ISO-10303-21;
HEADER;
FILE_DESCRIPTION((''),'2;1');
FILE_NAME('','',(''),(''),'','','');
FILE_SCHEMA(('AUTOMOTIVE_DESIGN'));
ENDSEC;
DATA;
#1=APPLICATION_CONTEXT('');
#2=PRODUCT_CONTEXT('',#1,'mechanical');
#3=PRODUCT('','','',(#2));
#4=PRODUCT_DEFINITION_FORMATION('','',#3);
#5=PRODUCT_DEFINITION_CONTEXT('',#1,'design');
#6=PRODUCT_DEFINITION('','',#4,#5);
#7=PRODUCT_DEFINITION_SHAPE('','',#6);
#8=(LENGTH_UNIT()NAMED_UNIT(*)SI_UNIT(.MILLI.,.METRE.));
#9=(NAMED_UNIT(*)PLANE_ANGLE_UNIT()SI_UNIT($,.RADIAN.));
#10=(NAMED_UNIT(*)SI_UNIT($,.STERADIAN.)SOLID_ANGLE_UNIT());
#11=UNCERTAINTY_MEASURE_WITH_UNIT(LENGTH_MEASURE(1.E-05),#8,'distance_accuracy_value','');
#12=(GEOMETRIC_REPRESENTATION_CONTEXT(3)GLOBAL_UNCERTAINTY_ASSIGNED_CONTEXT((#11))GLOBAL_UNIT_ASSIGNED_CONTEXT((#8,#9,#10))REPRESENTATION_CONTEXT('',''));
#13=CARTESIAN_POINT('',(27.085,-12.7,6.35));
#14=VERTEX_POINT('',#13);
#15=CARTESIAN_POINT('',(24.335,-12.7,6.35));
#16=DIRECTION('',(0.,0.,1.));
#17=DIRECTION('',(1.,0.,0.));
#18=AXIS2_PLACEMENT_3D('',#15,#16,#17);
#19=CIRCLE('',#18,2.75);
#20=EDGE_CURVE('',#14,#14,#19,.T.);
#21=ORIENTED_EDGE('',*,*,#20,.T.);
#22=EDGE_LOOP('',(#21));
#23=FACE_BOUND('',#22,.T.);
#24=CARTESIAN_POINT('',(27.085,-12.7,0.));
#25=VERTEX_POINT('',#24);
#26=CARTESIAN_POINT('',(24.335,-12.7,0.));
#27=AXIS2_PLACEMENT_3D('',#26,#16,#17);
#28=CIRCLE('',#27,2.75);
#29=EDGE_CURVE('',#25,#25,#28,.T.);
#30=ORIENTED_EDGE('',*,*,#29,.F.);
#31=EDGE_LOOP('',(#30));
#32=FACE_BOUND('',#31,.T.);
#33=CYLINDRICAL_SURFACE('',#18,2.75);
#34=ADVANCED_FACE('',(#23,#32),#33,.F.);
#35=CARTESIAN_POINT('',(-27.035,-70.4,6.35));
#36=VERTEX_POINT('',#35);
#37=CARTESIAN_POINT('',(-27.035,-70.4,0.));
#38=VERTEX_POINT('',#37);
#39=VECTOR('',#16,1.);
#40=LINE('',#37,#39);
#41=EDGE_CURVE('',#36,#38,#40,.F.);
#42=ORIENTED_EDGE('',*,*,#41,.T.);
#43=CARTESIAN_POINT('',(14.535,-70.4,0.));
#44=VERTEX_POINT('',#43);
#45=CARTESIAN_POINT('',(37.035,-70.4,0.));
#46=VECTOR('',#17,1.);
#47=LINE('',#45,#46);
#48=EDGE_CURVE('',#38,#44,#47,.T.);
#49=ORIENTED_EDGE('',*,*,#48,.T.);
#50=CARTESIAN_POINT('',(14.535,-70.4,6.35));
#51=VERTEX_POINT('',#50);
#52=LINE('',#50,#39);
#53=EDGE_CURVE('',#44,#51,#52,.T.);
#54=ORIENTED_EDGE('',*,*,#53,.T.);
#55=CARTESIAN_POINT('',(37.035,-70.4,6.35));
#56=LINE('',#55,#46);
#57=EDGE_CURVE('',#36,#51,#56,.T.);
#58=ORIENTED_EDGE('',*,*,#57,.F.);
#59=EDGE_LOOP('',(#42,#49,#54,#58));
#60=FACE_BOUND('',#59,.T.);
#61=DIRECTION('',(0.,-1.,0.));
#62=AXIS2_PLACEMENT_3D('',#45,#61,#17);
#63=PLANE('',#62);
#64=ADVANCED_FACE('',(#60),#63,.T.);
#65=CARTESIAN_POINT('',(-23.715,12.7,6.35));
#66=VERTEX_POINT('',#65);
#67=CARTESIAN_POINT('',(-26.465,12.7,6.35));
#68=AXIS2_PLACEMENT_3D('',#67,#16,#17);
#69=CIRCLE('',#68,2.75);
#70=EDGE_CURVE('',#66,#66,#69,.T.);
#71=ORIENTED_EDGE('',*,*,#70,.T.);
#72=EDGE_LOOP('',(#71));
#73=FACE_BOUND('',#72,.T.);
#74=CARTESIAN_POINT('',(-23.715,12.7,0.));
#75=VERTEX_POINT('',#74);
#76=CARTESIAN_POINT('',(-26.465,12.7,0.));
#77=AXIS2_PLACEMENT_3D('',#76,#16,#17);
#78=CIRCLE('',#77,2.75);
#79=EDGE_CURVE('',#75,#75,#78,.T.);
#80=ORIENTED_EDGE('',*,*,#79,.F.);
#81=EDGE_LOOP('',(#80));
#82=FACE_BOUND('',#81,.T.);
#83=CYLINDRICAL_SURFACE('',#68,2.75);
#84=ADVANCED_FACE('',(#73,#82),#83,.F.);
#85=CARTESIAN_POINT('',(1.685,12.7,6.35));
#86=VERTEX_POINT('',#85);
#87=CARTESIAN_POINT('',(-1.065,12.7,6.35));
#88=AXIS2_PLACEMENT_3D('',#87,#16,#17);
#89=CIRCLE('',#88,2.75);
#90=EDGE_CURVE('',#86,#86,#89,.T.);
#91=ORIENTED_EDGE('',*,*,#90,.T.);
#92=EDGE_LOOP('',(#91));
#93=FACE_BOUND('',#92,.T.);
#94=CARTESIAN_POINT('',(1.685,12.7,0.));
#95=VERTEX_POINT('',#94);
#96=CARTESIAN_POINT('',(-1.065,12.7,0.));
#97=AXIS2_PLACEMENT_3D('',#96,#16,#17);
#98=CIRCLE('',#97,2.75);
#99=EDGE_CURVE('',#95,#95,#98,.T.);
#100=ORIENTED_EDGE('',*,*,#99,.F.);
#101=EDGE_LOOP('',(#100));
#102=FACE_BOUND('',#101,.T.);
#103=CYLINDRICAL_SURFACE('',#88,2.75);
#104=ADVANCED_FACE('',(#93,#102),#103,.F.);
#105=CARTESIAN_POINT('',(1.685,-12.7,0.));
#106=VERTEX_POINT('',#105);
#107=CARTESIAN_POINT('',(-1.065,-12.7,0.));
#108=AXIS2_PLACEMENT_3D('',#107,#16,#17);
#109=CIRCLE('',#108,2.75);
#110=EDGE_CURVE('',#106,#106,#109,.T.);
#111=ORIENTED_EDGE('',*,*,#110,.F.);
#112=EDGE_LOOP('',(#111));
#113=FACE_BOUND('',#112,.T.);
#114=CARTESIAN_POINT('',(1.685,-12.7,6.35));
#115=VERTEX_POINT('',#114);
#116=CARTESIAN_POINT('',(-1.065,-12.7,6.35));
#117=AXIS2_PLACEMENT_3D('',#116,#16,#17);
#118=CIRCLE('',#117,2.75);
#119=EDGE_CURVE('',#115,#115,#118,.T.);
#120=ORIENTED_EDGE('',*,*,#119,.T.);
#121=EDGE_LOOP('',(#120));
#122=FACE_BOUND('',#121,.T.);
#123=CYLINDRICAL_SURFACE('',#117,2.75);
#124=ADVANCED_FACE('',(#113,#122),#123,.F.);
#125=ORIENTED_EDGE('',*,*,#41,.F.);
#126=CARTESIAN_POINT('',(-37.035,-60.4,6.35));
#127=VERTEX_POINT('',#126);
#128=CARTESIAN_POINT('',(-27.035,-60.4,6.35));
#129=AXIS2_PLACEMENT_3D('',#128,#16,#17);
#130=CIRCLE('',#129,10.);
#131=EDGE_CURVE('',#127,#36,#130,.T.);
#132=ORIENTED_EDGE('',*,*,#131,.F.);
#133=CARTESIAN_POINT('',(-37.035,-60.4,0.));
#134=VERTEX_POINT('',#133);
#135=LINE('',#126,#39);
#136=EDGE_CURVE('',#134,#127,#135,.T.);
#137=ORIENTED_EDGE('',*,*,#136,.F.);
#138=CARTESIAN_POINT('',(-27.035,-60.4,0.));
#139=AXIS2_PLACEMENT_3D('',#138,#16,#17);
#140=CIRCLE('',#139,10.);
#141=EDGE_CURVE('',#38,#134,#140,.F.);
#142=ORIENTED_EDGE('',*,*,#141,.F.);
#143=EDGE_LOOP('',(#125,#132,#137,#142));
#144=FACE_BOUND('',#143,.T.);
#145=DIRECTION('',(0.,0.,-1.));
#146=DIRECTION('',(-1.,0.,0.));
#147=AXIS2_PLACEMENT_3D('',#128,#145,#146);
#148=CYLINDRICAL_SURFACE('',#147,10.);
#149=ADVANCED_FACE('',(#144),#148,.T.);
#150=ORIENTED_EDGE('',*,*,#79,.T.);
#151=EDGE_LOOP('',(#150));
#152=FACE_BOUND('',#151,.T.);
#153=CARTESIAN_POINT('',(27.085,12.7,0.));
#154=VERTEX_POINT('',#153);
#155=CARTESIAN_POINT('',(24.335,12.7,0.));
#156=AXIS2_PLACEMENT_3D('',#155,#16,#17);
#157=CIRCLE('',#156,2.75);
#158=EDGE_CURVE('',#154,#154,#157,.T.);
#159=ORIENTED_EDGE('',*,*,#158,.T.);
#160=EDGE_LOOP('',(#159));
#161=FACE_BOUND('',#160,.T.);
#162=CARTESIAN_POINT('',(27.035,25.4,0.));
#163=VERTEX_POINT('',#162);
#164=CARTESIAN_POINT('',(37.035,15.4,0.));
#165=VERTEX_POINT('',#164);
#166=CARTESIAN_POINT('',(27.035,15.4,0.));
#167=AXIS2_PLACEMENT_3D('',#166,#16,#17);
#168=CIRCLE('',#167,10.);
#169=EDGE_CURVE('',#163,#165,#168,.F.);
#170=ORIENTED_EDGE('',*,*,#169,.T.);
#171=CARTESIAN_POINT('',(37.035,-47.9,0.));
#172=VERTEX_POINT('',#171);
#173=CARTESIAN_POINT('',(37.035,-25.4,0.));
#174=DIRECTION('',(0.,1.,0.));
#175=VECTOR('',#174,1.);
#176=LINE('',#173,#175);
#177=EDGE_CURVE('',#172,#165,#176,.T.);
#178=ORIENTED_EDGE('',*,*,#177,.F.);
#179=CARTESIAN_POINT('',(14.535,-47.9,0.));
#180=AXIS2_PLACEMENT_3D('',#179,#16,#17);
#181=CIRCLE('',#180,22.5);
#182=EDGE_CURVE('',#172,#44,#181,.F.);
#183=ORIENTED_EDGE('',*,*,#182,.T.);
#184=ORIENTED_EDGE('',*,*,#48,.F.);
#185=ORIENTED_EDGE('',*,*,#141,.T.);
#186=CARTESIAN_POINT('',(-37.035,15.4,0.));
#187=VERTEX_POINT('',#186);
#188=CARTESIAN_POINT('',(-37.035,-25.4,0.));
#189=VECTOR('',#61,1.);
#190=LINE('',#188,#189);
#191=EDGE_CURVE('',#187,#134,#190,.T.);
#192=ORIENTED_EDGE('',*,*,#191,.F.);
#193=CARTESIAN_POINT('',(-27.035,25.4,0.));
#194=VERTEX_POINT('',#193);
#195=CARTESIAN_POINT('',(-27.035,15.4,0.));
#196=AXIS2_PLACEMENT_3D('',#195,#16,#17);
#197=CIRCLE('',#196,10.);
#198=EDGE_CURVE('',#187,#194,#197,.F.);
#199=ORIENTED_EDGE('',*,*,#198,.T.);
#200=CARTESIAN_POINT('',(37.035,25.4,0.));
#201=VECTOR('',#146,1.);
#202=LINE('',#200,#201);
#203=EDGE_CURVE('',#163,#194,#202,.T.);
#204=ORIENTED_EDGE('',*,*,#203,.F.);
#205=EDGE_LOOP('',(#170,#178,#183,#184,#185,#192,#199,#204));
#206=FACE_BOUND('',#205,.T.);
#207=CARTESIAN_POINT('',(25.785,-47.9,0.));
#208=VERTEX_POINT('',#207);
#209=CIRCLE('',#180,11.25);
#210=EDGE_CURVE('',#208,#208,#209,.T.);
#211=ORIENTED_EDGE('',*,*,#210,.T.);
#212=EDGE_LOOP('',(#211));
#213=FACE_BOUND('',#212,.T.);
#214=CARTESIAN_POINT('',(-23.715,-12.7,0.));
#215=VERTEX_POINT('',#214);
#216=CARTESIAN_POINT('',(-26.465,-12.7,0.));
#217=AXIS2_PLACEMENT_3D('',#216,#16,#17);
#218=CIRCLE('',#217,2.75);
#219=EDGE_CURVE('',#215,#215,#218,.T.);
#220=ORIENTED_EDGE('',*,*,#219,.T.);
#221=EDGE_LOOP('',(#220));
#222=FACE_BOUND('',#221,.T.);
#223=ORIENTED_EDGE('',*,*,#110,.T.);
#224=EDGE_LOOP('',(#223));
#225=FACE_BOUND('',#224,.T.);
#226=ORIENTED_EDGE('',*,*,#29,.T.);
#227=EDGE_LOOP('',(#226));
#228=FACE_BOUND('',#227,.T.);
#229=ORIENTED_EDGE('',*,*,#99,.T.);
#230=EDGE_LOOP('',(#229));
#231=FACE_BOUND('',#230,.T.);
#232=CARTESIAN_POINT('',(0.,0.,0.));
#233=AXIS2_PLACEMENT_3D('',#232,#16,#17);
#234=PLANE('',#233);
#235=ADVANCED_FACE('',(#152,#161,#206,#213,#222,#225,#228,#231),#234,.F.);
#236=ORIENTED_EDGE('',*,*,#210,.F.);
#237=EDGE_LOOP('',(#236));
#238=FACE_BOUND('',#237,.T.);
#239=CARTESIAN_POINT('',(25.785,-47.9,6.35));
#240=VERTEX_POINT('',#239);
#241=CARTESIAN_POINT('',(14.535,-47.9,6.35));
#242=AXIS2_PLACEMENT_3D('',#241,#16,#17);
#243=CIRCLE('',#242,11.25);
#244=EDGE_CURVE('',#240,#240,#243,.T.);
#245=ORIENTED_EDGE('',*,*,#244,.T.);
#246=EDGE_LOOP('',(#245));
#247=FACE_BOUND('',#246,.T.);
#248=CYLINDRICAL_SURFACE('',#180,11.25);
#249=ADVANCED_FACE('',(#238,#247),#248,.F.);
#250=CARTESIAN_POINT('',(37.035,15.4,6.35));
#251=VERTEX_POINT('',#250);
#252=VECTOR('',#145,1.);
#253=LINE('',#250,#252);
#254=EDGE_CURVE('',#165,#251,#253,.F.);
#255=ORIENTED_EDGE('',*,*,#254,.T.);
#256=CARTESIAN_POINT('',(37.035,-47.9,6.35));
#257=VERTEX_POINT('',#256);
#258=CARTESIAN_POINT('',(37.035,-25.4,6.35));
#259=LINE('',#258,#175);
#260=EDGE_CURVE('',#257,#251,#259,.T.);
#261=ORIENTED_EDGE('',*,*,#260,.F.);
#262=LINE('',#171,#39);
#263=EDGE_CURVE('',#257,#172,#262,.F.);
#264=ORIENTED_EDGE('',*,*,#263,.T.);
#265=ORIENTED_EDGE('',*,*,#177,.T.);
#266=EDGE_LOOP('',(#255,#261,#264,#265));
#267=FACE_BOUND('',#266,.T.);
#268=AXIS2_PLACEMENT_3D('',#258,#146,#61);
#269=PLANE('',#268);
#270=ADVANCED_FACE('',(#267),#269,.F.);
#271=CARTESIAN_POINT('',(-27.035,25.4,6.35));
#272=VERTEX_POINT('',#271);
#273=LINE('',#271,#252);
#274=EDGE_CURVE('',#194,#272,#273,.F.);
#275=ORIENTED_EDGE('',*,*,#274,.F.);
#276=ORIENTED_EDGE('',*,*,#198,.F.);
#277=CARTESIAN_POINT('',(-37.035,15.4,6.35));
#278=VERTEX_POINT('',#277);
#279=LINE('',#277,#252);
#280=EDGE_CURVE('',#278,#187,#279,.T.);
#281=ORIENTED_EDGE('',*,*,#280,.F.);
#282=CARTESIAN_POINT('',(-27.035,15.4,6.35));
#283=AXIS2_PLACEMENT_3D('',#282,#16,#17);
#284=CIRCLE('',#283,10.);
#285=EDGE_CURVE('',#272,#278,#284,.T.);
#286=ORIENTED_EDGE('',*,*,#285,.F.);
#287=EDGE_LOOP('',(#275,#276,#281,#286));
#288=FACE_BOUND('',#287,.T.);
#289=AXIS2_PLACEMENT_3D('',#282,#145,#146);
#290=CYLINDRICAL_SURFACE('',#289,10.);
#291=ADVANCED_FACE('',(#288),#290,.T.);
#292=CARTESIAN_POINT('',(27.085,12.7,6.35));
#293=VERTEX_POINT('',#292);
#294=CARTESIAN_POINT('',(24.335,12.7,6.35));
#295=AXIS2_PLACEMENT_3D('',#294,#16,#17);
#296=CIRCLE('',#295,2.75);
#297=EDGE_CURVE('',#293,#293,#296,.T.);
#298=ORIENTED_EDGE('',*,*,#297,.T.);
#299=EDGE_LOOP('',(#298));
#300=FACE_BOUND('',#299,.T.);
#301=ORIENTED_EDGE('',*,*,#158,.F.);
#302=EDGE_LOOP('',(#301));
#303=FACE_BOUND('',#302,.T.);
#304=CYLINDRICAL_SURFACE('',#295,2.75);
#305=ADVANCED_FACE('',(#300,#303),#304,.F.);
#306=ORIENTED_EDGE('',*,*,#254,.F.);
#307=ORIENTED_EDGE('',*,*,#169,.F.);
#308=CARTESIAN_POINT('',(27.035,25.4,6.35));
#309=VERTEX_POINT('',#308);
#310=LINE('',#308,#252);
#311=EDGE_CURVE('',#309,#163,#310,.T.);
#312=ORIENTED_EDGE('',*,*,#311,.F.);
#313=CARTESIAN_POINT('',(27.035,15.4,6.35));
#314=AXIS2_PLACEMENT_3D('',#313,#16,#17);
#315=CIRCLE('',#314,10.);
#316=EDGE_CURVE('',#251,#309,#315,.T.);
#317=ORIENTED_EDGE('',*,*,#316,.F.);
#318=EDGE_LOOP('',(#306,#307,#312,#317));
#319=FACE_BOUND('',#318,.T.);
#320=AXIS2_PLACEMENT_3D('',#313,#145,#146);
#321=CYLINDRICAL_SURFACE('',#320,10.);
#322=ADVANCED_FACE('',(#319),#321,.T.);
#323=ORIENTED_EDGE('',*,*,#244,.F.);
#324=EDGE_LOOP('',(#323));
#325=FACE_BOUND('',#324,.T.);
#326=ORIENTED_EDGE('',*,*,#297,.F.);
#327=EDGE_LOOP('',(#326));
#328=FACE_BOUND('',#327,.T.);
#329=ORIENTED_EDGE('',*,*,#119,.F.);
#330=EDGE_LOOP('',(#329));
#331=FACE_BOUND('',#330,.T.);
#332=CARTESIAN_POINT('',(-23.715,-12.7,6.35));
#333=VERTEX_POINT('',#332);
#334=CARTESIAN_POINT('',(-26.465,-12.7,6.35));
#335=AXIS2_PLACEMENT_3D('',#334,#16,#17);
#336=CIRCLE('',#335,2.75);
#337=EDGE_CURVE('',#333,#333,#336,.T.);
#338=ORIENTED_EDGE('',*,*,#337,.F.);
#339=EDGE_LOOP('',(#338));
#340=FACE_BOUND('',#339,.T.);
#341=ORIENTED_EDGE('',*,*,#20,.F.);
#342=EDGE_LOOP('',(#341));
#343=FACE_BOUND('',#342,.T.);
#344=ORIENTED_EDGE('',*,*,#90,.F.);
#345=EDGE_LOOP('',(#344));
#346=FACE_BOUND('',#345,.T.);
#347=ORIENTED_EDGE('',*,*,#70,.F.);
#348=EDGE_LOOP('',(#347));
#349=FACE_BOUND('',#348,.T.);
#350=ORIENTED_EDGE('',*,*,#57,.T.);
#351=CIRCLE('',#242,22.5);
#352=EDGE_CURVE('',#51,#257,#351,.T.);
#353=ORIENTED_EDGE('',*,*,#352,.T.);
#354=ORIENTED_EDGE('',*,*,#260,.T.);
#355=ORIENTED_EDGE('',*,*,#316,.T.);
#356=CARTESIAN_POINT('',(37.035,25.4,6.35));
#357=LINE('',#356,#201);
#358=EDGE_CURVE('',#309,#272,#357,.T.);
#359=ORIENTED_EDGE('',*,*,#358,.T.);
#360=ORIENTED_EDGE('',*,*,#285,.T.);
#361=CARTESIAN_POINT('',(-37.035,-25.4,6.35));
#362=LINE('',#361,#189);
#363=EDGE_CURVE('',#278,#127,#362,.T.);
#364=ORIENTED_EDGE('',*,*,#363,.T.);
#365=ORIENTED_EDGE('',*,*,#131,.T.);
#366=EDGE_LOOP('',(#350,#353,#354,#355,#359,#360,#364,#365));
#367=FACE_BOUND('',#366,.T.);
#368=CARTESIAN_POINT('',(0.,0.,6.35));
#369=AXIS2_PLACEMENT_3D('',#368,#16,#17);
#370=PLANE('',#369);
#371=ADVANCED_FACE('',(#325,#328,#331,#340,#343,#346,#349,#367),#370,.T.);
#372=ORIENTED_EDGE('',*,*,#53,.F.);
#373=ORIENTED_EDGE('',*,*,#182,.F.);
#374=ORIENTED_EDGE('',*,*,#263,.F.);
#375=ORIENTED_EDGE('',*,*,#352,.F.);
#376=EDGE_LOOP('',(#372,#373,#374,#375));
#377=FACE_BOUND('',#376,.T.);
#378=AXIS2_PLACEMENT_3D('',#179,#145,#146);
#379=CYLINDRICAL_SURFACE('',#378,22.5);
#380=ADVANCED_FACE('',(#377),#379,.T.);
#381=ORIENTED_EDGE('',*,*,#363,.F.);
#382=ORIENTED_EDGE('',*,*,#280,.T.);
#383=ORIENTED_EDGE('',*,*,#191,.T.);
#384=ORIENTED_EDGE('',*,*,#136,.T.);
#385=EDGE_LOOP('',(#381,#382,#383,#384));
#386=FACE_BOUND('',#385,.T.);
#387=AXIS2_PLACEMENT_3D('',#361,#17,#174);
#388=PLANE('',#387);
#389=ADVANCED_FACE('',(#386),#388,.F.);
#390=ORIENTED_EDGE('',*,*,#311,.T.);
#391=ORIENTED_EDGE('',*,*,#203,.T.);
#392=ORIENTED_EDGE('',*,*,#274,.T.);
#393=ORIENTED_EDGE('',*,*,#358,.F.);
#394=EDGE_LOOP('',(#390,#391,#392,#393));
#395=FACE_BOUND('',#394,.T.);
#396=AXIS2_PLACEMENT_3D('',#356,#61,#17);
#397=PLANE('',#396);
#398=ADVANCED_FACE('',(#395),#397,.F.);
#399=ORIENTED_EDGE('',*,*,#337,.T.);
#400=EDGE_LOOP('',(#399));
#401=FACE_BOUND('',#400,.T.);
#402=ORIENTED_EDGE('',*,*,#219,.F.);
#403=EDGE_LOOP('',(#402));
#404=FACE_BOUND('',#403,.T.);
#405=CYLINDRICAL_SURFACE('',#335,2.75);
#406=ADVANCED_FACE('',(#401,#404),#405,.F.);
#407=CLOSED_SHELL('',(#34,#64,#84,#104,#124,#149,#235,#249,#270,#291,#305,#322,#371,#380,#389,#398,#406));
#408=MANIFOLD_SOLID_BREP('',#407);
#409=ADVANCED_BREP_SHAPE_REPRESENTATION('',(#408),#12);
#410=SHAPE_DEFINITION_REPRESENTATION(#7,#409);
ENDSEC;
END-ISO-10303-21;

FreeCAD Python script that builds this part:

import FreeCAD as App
import Part
import Sketcher
from FreeCAD import Vector
Q = App.Units.Quantity


def edges_at(feature, points):
    """Names of the edges that pass closest to the given points."""
    edges = feature.Shape.Edges
    near = lambda p: min(range(len(edges)), key=lambda i: edges[i].distToShape(Part.Vertex(*p))[0])
    return sorted({f"Edge{near(p) + 1}" for p in points})


def add_polygon(sketch, points):
    """Adds a closed chain of lines whose ends are joined by coincident constraints."""
    first, n = sketch.GeometryCount, len(points)
    for a, b in zip(points, points[1:] + points[:1]):
        sketch.addGeometry(Part.LineSegment(App.Vector(*a, 0), App.Vector(*b, 0)), False)
    for i in range(n):
        sketch.addConstraint(Sketcher.Constraint("Coincident", first + i, 2, first + (i + 1) % n, 1))

doc = App.newDocument("Part")
params = doc.addObject("Spreadsheet::Sheet", "Params")
for row, (alias, value) in enumerate([
    ("sketch1_height", "50.8 mm"),
    ("sketch1_width", "74.07 mm"),
    ("pad1_length", "6.35 mm"),
    ("fillet_radius", "10 mm"),
    ("sketch2_diameter", "5.5 mm"),
    ("hole_diameter", "5.5 mm"),
    ("sketch3_height", "55 mm"),
    ("sketch3_width", "54.07 mm"),
    ("pad2_length", "6.35 mm"),
    ("sketch4_diameter", "22.5 mm"),
    ("fillet2_radius", "10 mm"),
    ("fillet3_radius", "22.5 mm"),
], start=1):
    params.set(f"A{row}", alias)
    params.set(f"B{row}", "=" + value)
    params.setAlias(f"B{row}", alias)

body = doc.addObject("PartDesign::Body", "Body")

sketch1 = body.newObject("Sketcher::SketchObject", "Sketch")
sketch1.AttachmentSupport = (doc.getObject("XY_Plane"), [""])
sketch1.MapMode = "FlatFace"
add_polygon(sketch1, [(-37.035, 25.4), (-37.035, -25.4), (37.035, -25.4), (37.035, 25.4)])
sketch1.addConstraint(Sketcher.Constraint("Vertical", 0))
sketch1.addConstraint(Sketcher.Constraint("Horizontal", 1))
sketch1.addConstraint(Sketcher.Constraint("Vertical", 2))
sketch1.addConstraint(Sketcher.Constraint("Horizontal", 3))
sketch1.addConstraint(Sketcher.Constraint("Symmetric", 0, 2, 2, 2, -1, 1))
sketch1.addConstraint(Sketcher.Constraint("DistanceY", 0, 2, 0, 1, Q("50.8 mm")))
sketch1.addConstraint(Sketcher.Constraint("DistanceX", 1, 1, 1, 2, Q("74.07 mm")))
sketch1.setExpression("Constraints[9]", "Params.sketch1_height")
sketch1.setExpression("Constraints[10]", "Params.sketch1_width")
pad1 = body.newObject("PartDesign::Pad", "Pad")
pad1.Profile = sketch1
pad1.setExpression("Length", "Params.pad1_length")
doc.recompute()

fillet = body.newObject("PartDesign::Fillet", "Fillet")
fillet.Base = (pad1, edges_at(pad1, [
    (-37.035, 25.4, 3.175),
    (37.035, 25.4, 3.175),
    (37.035, -25.4, 3.175),
    (-37.035, -25.4, 3.175),
]))
fillet.setExpression("Radius", "Params.fillet_radius")

sketch2 = body.newObject("Sketcher::SketchObject", "Sketch001")
sketch2.AttachmentSupport = (doc.getObject("XY_Plane"), [""])
sketch2.MapMode = "FlatFace"
sketch2.AttachmentOffset = App.Placement(Vector(0, 0, 6.35), App.Rotation())
sketch2.addGeometry(Part.Circle(Vector(-26.465, 12.7, 0), Vector(0, 0, 1), 2.75), False)
sketch2.addGeometry(Part.Circle(Vector(-26.465, -12.7, 0), Vector(0, 0, 1), 2.75), False)
sketch2.addGeometry(Part.Circle(Vector(-1.065, -12.7, 0), Vector(0, 0, 1), 2.75), False)
sketch2.addGeometry(Part.Circle(Vector(-1.065, 12.7, 0), Vector(0, 0, 1), 2.75), False)
sketch2.addGeometry(Part.Circle(Vector(24.335, 12.7, 0), Vector(0, 0, 1), 2.75), False)
sketch2.addGeometry(Part.Circle(Vector(24.335, -12.7, 0), Vector(0, 0, 1), 2.75), False)
sketch2.addConstraint(Sketcher.Constraint("Equal", 0, 1))
sketch2.addConstraint(Sketcher.Constraint("Equal", 1, 2))
sketch2.addConstraint(Sketcher.Constraint("Equal", 2, 3))
sketch2.addConstraint(Sketcher.Constraint("Equal", 3, 4))
sketch2.addConstraint(Sketcher.Constraint("Equal", 4, 5))
sketch2.addConstraint(Sketcher.Constraint("Symmetric", 0, 3, 1, 3, -1))
sketch2.addConstraint(Sketcher.Constraint("Symmetric", 2, 3, 3, 3, -1))
sketch2.addConstraint(Sketcher.Constraint("Symmetric", 4, 3, 5, 3, -1))
sketch2.addConstraint(Sketcher.Constraint("Horizontal", 1, 3, 2, 3))
sketch2.addConstraint(Sketcher.Constraint("Horizontal", 3, 3, 4, 3))
sketch2.addConstraint(Sketcher.Constraint("Diameter", 0, Q("5.5 mm")))
sketch2.addConstraint(Sketcher.Constraint("DistanceY", -1, 1, 0, 3, Q("12.7 mm")))
sketch2.addConstraint(Sketcher.Constraint("DistanceX", 1, 3, 2, 3, Q("25.4 mm")))
sketch2.addConstraint(Sketcher.Constraint("DistanceX", 3, 3, 4, 3, Q("25.4 mm")))
sketch2.addConstraint(Sketcher.Constraint("DistanceX", 0, 3, -1, 1, Q("26.465 mm")))
sketch2.setExpression("Constraints[10]", "Params.sketch2_diameter")
doc.recompute()
hole = body.newObject("PartDesign::Hole", "Hole")
hole.Profile = sketch2
hole.ThreadType = "None"
hole.setExpression("Diameter", "Params.hole_diameter")
hole.DepthType = "ThroughAll"

sketch3 = body.newObject("Sketcher::SketchObject", "Sketch002")
sketch3.AttachmentSupport = (doc.getObject("XY_Plane"), [""])
sketch3.MapMode = "FlatFace"
sketch3.AttachmentOffset = App.Placement(Vector(0, 0, 6.35), App.Rotation())
add_polygon(sketch3, [(37.035, -70.4), (37.035, -15.4), (27.035, -25.4), (-27.035, -25.4), (-37.035, -15.4), (-37.035, -70.4)])
sketch3.addConstraint(Sketcher.Constraint("Vertical", 0))
sketch3.addConstraint(Sketcher.Constraint("Horizontal", 2))
sketch3.addConstraint(Sketcher.Constraint("Vertical", 4))
sketch3.addConstraint(Sketcher.Constraint("Horizontal", 5))
sketch3.addConstraint(Sketcher.Constraint("Symmetric", 0, 2, 3, 2, -2))
sketch3.addConstraint(Sketcher.Constraint("Perpendicular", 1, 3))
sketch3.addConstraint(Sketcher.Constraint("Equal", 1, 3))
sketch3.addConstraint(Sketcher.Constraint("DistanceY", 0, 1, 0, 2, Q("55 mm")))
sketch3.addConstraint(Sketcher.Constraint("DistanceX", 1, 2, 0, 2, Q("10 mm")))
sketch3.addConstraint(Sketcher.Constraint("DistanceX", 2, 2, 2, 1, Q("54.07 mm")))
sketch3.addConstraint(Sketcher.Constraint("DistanceY", 0, 2, -1, 1, Q("15.4 mm")))
sketch3.setExpression("Constraints[13]", "Params.sketch3_height")
sketch3.setExpression("Constraints[15]", "Params.sketch3_width")
pad2 = body.newObject("PartDesign::Pad", "Pad001")
pad2.Profile = sketch3
pad2.setExpression("Length", "Params.pad2_length")
pad2.Reversed = True

sketch4 = body.newObject("Sketcher::SketchObject", "Sketch003")
sketch4.AttachmentSupport = (doc.getObject("XY_Plane"), [""])
sketch4.MapMode = "FlatFace"
sketch4.AttachmentOffset = App.Placement(Vector(0, 0, 6.35), App.Rotation())
sketch4.addGeometry(Part.Circle(Vector(14.535, -47.9, 0), Vector(0, 0, 1), 11.25), False)
sketch4.addConstraint(Sketcher.Constraint("Diameter", 0, Q("22.5 mm")))
sketch4.addConstraint(Sketcher.Constraint("DistanceY", 0, 3, -1, 1, Q("47.9 mm")))
sketch4.addConstraint(Sketcher.Constraint("DistanceX", -1, 1, 0, 3, Q("14.535 mm")))
sketch4.setExpression("Constraints[0]", "Params.sketch4_diameter")
pocket1 = body.newObject("PartDesign::Pocket", "Pocket")
pocket1.Profile = sketch4
pocket1.Type = "ThroughAll"
doc.recompute()

fillet2 = body.newObject("PartDesign::Fillet", "Fillet001")
fillet2.Base = (pocket1, edges_at(pocket1, [(-37.035, -70.4, 3.175)]))
fillet2.setExpression("Radius", "Params.fillet2_radius")
doc.recompute()

fillet3 = body.newObject("PartDesign::Fillet", "Fillet002")
fillet3.Base = (fillet2, edges_at(fillet2, [(37.035, -70.4, 3.175)]))
fillet3.setExpression("Radius", "Params.fillet3_radius")

doc.recompute()
